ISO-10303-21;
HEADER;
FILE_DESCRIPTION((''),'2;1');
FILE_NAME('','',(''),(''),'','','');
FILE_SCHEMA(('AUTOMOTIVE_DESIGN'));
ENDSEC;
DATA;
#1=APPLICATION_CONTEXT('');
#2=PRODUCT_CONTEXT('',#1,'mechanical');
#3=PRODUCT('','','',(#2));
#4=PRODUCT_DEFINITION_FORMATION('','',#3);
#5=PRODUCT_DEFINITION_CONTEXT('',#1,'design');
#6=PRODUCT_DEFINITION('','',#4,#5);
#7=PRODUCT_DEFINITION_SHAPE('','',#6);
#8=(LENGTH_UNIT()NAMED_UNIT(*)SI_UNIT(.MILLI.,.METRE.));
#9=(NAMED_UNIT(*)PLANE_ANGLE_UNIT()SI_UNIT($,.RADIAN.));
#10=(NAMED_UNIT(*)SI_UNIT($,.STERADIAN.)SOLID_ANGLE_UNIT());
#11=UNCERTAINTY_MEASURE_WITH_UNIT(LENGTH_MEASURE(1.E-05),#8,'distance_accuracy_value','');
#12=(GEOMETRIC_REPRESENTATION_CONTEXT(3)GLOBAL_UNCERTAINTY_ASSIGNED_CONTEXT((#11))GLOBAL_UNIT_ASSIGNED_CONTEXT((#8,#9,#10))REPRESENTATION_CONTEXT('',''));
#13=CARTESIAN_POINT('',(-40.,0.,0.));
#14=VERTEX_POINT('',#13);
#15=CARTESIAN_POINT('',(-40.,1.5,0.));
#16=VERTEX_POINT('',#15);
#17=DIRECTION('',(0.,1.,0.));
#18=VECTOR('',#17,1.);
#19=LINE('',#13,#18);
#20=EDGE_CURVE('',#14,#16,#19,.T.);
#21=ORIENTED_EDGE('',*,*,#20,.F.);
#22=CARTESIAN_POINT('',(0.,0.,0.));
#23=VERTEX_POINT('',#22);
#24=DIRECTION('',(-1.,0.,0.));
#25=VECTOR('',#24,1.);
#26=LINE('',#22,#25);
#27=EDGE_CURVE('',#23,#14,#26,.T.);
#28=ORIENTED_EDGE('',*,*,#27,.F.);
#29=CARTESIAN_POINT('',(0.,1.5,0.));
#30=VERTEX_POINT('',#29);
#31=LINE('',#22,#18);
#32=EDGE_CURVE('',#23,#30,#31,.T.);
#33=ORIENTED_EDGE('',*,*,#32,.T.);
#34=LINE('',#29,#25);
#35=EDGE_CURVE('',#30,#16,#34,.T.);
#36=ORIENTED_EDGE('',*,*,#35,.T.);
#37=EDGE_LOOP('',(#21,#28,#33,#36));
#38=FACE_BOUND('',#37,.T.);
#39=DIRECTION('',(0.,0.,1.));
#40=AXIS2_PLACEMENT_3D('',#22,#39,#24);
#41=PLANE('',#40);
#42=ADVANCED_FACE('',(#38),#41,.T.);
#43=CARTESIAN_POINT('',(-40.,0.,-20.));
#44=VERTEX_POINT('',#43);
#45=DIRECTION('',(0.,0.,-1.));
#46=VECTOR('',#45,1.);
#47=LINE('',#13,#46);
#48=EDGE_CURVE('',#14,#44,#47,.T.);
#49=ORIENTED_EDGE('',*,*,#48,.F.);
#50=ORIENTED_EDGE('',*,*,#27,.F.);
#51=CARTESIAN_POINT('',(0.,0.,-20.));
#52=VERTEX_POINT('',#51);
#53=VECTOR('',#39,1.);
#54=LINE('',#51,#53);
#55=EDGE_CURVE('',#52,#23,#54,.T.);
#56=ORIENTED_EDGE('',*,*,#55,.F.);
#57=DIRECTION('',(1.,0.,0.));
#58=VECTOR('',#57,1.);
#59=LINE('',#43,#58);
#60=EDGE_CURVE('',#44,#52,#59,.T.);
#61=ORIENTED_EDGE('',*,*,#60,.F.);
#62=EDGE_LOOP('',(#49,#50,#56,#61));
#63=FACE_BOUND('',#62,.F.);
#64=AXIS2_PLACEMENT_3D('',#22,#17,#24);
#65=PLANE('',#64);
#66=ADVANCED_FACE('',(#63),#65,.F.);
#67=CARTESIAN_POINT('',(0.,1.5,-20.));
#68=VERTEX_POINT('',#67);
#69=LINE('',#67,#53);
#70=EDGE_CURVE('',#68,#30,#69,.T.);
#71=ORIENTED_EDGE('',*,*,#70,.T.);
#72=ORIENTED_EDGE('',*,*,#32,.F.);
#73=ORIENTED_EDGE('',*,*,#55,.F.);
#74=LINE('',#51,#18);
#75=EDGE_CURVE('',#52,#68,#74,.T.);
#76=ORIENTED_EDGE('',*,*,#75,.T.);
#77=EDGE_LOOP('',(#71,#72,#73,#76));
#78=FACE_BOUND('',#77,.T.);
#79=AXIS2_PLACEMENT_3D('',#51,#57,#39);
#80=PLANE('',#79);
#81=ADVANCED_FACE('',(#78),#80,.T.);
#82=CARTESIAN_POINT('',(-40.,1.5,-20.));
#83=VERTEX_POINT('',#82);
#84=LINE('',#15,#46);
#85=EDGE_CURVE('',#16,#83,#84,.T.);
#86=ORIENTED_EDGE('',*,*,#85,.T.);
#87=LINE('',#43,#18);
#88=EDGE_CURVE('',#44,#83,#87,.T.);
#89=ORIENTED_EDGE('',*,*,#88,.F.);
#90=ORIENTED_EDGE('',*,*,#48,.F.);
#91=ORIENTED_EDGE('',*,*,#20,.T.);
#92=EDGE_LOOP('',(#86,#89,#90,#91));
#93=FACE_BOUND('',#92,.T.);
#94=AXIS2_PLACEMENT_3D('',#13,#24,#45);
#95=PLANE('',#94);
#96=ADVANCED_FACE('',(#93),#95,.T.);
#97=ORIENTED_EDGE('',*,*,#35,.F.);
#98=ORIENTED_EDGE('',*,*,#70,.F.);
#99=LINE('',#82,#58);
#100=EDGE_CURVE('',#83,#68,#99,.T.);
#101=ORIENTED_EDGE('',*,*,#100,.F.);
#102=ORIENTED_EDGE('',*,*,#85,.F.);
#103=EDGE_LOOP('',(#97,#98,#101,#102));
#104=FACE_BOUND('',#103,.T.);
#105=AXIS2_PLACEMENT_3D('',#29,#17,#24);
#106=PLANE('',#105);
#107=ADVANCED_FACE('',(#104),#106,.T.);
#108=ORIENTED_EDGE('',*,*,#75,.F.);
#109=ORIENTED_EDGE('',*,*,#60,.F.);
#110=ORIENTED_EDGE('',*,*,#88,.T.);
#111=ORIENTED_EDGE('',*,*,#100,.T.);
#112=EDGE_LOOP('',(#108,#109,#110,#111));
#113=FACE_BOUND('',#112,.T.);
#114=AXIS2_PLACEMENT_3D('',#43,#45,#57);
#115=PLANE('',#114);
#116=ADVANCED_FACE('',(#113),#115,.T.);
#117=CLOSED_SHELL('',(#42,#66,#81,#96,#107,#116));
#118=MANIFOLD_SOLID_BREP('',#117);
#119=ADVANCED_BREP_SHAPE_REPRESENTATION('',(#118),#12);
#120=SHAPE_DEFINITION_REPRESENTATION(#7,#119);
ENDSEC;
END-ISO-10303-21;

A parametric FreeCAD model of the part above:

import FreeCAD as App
import Part
import Sketcher
from FreeCAD import Vector

doc = App.newDocument("Part")
body = doc.addObject("PartDesign::Body", "Body")

# Sketch on XZ plane
sketch1 = doc.addObject("Sketcher::SketchObject", "Sketch")
body.addObject(sketch1)
sketch1.AttachmentSupport = (doc.XZ_Plane, [""])
sketch1.MapMode = "FlatFace"
sketch1.addGeometry(Part.LineSegment(Vector(-40, 0, 0), Vector(0, 0, 0)), False)
sketch1.addGeometry(Part.LineSegment(Vector(0, 0, 0), Vector(0, -20, 0)), False)
sketch1.addGeometry(Part.LineSegment(Vector(0, -20, 0), Vector(-40, -20, 0)), False)
sketch1.addGeometry(Part.LineSegment(Vector(-40, -20, 0), Vector(-40, 0, 0)), False)
sketch1.addConstraint(Sketcher.Constraint("Coincident", 0, 2, 1, 1))
sketch1.addConstraint(Sketcher.Constraint("Coincident", 1, 2, 2, 1))
sketch1.addConstraint(Sketcher.Constraint("Coincident", 2, 2, 3, 1))
sketch1.addConstraint(Sketcher.Constraint("Coincident", 3, 2, 0, 1))
sketch1.addConstraint(Sketcher.Constraint("Horizontal", 0))
sketch1.addConstraint(Sketcher.Constraint("Vertical", 1))
sketch1.addConstraint(Sketcher.Constraint("Horizontal", 2))
sketch1.addConstraint(Sketcher.Constraint("Vertical", 3))
sketch1.addConstraint(Sketcher.Constraint("Coincident", 0, 2, -1, 1))
sketch1.addConstraint(Sketcher.Constraint("DistanceX", 0, 1, 0, 2, 40.0))
sketch1.addConstraint(Sketcher.Constraint("DistanceY", 1, 2, 1, 1, 20.0))
pad1 = doc.addObject("PartDesign::Pad", "Pad")
body.addObject(pad1)
pad1.Profile = sketch1
pad1.Length = 1.5
pad1.Reversed = True

doc.recompute()
